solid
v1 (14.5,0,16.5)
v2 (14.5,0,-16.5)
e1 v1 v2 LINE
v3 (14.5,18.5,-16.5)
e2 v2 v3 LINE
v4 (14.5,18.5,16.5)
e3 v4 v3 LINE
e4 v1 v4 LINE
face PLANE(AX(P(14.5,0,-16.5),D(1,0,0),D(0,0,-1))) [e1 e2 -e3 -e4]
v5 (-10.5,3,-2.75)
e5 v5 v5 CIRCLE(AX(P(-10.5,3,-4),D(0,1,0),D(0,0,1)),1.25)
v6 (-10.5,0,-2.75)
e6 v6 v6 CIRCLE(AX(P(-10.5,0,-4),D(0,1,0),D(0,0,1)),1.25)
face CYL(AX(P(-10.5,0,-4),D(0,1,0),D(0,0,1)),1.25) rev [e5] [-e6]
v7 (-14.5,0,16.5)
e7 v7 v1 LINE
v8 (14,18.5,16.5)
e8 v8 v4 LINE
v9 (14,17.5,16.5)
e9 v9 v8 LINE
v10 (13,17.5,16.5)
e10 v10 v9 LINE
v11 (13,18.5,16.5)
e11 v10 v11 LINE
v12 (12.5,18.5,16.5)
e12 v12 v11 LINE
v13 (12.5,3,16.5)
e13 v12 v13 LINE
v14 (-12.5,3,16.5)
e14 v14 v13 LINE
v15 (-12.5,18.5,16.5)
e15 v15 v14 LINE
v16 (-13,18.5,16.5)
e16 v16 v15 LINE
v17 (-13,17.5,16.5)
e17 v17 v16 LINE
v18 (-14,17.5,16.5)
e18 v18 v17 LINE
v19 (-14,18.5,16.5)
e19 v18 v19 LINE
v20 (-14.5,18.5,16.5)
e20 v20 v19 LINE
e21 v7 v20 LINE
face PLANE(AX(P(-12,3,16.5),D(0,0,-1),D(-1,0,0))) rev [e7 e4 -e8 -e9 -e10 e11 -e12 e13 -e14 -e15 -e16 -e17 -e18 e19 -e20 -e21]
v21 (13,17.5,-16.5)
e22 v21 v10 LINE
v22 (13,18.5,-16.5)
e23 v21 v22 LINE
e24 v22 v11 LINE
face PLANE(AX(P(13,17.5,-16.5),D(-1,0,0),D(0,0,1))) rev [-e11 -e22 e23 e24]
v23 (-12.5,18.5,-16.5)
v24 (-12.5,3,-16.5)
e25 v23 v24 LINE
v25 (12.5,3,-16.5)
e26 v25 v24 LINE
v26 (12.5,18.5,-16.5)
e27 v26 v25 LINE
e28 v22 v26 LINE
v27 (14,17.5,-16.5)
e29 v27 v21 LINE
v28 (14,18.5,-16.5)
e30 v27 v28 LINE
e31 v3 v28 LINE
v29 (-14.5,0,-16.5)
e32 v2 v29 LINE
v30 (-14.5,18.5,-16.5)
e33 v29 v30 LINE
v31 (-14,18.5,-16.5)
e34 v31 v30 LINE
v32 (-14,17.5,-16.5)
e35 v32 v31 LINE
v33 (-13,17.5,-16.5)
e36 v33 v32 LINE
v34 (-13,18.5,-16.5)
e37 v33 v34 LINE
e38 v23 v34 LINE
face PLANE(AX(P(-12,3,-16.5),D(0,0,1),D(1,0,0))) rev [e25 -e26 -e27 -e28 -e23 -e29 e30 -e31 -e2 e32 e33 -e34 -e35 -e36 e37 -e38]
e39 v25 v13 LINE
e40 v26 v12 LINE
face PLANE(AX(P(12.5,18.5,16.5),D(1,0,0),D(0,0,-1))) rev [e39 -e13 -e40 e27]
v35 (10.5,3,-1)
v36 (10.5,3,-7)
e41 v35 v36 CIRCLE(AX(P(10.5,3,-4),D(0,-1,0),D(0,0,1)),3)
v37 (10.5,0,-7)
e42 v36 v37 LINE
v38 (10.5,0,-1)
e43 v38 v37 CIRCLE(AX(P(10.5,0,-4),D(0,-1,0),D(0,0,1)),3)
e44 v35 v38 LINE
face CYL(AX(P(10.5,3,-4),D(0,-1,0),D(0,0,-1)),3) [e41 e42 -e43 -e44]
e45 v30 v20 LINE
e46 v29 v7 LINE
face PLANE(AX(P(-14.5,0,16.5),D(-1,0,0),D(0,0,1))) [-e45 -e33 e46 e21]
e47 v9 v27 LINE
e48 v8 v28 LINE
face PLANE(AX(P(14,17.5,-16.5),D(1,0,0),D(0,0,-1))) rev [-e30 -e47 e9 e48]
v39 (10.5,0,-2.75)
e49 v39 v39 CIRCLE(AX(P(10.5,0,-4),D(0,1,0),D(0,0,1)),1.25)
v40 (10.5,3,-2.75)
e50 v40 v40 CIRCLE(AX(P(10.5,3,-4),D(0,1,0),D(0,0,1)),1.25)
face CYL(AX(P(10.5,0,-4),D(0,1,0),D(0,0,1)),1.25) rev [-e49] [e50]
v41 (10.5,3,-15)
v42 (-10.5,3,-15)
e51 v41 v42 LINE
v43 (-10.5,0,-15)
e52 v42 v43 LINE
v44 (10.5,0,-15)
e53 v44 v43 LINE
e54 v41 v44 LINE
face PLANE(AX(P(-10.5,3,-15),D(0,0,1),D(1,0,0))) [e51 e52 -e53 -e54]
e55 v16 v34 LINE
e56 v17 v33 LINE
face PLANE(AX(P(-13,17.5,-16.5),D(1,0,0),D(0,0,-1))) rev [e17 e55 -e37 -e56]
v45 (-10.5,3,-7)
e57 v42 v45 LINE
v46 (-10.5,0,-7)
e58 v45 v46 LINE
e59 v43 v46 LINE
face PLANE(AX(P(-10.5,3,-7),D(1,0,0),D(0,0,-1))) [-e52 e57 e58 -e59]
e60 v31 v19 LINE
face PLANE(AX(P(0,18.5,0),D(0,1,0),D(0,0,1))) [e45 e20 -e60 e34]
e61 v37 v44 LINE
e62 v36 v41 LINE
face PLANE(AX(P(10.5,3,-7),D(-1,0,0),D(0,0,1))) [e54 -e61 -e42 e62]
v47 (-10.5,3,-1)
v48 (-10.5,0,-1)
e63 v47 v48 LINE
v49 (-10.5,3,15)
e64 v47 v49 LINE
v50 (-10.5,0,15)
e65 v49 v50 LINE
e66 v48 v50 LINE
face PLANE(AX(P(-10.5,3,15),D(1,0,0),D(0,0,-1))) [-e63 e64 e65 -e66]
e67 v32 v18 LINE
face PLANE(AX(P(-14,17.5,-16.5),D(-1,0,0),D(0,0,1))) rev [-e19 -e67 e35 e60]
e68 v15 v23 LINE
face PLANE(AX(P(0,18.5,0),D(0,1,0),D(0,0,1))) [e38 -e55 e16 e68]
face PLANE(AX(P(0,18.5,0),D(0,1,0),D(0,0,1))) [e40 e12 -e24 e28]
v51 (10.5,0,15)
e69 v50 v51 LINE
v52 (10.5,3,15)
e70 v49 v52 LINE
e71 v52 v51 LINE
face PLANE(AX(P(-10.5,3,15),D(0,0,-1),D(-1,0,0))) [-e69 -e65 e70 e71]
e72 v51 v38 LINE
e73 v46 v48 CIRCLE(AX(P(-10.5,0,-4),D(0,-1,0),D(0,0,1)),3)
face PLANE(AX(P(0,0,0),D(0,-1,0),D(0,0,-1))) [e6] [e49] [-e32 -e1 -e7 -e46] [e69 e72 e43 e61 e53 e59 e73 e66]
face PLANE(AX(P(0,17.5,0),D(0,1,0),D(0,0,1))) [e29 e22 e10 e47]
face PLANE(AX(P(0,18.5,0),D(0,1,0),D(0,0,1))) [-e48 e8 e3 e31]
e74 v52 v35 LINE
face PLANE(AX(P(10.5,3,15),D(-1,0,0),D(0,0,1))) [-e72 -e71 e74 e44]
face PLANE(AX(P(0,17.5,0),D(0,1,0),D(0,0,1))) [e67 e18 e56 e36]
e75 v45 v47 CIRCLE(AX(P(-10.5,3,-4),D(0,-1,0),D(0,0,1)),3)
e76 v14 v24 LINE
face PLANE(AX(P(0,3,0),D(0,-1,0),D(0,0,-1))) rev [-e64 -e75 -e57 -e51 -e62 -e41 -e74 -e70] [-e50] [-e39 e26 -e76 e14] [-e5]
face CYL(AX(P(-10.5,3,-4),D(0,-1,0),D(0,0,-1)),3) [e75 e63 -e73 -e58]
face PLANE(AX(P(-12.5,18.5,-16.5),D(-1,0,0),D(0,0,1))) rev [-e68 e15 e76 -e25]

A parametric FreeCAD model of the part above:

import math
import FreeCAD as App
import Part
import Sketcher
from FreeCAD import Vector
Q = App.Units.Quantity

doc = App.newDocument("Part")
body = doc.addObject("PartDesign::Body", "Body")

# Sketch on XZ plane
sketch1 = doc.addObject("Sketcher::SketchObject", "Sketch")
body.addObject(sketch1)
sketch1.AttachmentSupport = (doc.XZ_Plane, [""])
sketch1.MapMode = "FlatFace"
sketch1.addGeometry([
    Part.LineSegment(Vector(-12, -16.5, 0), Vector(-12, 16.5, 0)),  # 0
    Part.LineSegment(Vector(-12, 16.5, 0), Vector(12, 16.5, 0)),  # 1
    Part.LineSegment(Vector(12, 16.5, 0), Vector(12, -16.5, 0)),  # 2
    Part.LineSegment(Vector(12, -16.5, 0), Vector(-12, -16.5, 0)),  # 3
    Part.LineSegment(Vector(10.5, -15, 0), Vector(10.5, -7, 0)),  # 4
    Part.ArcOfCircle(Part.Circle(Vector(10.5, -4, 0), Vector(0, 0, 1), 3), math.radians(90), math.radians(270)),  # 5
    Part.LineSegment(Vector(10.5, -1, 0), Vector(10.5, 15, 0)),  # 6
    Part.LineSegment(Vector(10.5, 15, 0), Vector(-10.5, 15, 0)),  # 7
    Part.LineSegment(Vector(-10.5, 15, 0), Vector(-10.5, -1, 0)),  # 8
    Part.ArcOfCircle(Part.Circle(Vector(-10.5, -4, 0), Vector(0, 0, 1), 3), math.radians(-90), math.radians(90)),  # 9
    Part.LineSegment(Vector(-10.5, -7, 0), Vector(-10.5, -15, 0)),  # 10
    Part.LineSegment(Vector(-10.5, -15, 0), Vector(10.5, -15, 0)),  # 11
], False)
sketch1.addConstraint([
    Sketcher.Constraint("Coincident", 0, 2, 1, 1),
    Sketcher.Constraint("Coincident", 1, 2, 2, 1),
    Sketcher.Constraint("Coincident", 2, 2, 3, 1),
    Sketcher.Constraint("Coincident", 3, 2, 0, 1),
    Sketcher.Constraint("Coincident", 4, 2, 5, 2),
    Sketcher.Constraint("Coincident", 5, 1, 6, 1),
    Sketcher.Constraint("Coincident", 6, 2, 7, 1),
    Sketcher.Constraint("Coincident", 7, 2, 8, 1),
    Sketcher.Constraint("Coincident", 8, 2, 9, 2),
    Sketcher.Constraint("Coincident", 9, 1, 10, 1),
    Sketcher.Constraint("Coincident", 10, 2, 11, 1),
    Sketcher.Constraint("Coincident", 11, 2, 4, 1),
    Sketcher.Constraint("Vertical", 0),
    Sketcher.Constraint("Horizontal", 1),
    Sketcher.Constraint("Vertical", 2),
    Sketcher.Constraint("Horizontal", 3),
    Sketcher.Constraint("Vertical", 4),
    Sketcher.Constraint("Vertical", 6),
    Sketcher.Constraint("Horizontal", 7),
    Sketcher.Constraint("Vertical", 8),
    Sketcher.Constraint("Vertical", 10),
    Sketcher.Constraint("Horizontal", 11),
    Sketcher.Constraint("Equal", 5, 9),
    Sketcher.Constraint("Symmetric", 0, 2, 2, 2, -1, 1),
    Sketcher.Constraint("Symmetric", 6, 2, 10, 2, -1, 1),
    Sketcher.Constraint("Symmetric", 5, 3, 9, 3, -2),
    Sketcher.Constraint("Vertical", 5, 3, 4, 2),
    Sketcher.Constraint("Vertical", 4, 2, 5, 1),
    Sketcher.Constraint("Vertical", 9, 3, 7, 2),
    Sketcher.Constraint("Radius", 5, Q("3 mm")),
    Sketcher.Constraint("DistanceX", 1, 1, 1, 2, Q("24 mm")),
    Sketcher.Constraint("DistanceX", 7, 2, 7, 1, Q("21 mm")),
    Sketcher.Constraint("DistanceY", 0, 1, 0, 2, Q("33 mm")),
    Sketcher.Constraint("DistanceY", 4, 1, 4, 2, Q("8 mm")),
    Sketcher.Constraint("DistanceY", 6, 1, 6, 2, Q("16 mm")),
])
pad1 = doc.addObject("PartDesign::Pad", "Pad")
body.addObject(pad1)
pad1.Profile = sketch1
pad1.Length = 3
pad1.Reversed = True

# Sketch on XZ plane
sketch2 = doc.addObject("Sketcher::SketchObject", "Sketch001")
body.addObject(sketch2)
sketch2.AttachmentSupport = (doc.XZ_Plane, [""])
sketch2.MapMode = "FlatFace"
sketch2.AttachmentOffset = App.Placement(Vector(0, 0, -3), App.Rotation())
sketch2.addGeometry([
    Part.Circle(Vector(-10.5, -4, 0), Vector(0, 0, 1), 1.25),
    Part.Circle(Vector(10.5, -4, 0), Vector(0, 0, 1), 1.25),
], False)
sketch2.addConstraint([
    Sketcher.Constraint("Equal", 0, 1),
    Sketcher.Constraint("Symmetric", 0, 3, 1, 3, -2),
    Sketcher.Constraint("Diameter", 0, Q("2.5 mm")),
    Sketcher.Constraint("DistanceY", 0, 3, -1, 1, Q("4 mm")),
    Sketcher.Constraint("DistanceX", 0, 3, 1, 3, Q("21 mm")),
])
pocket1 = doc.addObject("PartDesign::Pocket", "Pocket")
body.addObject(pocket1)
pocket1.Profile = sketch2
pocket1.Length = 3
pocket1.Reversed = True

# Sketch on XZ plane
sketch3 = doc.addObject("Sketcher::SketchObject", "Sketch002")
body.addObject(sketch3)
sketch3.AttachmentSupport = (doc.XZ_Plane, [""])
sketch3.MapMode = "FlatFace"
sketch3.AttachmentOffset = App.Placement(Vector(0, 0, -3), App.Rotation())
sketch3.addGeometry([
    Part.LineSegment(Vector(-14.5, -16.5, 0), Vector(-14.5, 16.5, 0)),  # 0
    Part.LineSegment(Vector(-14.5, 16.5, 0), Vector(-12, 16.5, 0)),  # 1
    Part.LineSegment(Vector(-12, 16.5, 0), Vector(-12, -16.5, 0)),  # 2
    Part.LineSegment(Vector(-12, -16.5, 0), Vector(-14.5, -16.5, 0)),  # 3
    Part.LineSegment(Vector(12, -16.5, 0), Vector(12, 16.5, 0)),  # 4
    Part.LineSegment(Vector(12, 16.5, 0), Vector(14.5, 16.5, 0)),  # 5
    Part.LineSegment(Vector(14.5, 16.5, 0), Vector(14.5, -16.5, 0)),  # 6
    Part.LineSegment(Vector(14.5, -16.5, 0), Vector(12, -16.5, 0)),  # 7
], False)
sketch3.addConstraint([
    Sketcher.Constraint("Coincident", 0, 2, 1, 1),
    Sketcher.Constraint("Coincident", 1, 2, 2, 1),
    Sketcher.Constraint("Coincident", 2, 2, 3, 1),
    Sketcher.Constraint("Coincident", 3, 2, 0, 1),
    Sketcher.Constraint("Coincident", 4, 2, 5, 1),
    Sketcher.Constraint("Coincident", 5, 2, 6, 1),
    Sketcher.Constraint("Coincident", 6, 2, 7, 1),
    Sketcher.Constraint("Coincident", 7, 2, 4, 1),
    Sketcher.Constraint("Vertical", 0),
    Sketcher.Constraint("Horizontal", 1),
    Sketcher.Constraint("Vertical", 2),
    Sketcher.Constraint("Horizontal", 3),
    Sketcher.Constraint("Vertical", 4),
    Sketcher.Constraint("Horizontal", 5),
    Sketcher.Constraint("Vertical", 6),
    Sketcher.Constraint("Horizontal", 7),
    Sketcher.Constraint("Symmetric", 2, 2, 4, 2, -1, 1),
    Sketcher.Constraint("Symmetric", 0, 2, 6, 2, -1, 1),
    Sketcher.Constraint("Horizontal", 1, 2, 4, 2),
    Sketcher.Constraint("DistanceY", 0, 1, 0, 2, Q("33 mm")),
    Sketcher.Constraint("DistanceX", 1, 1, 1, 2, Q("2.5 mm")),
    Sketcher.Constraint("DistanceX", 1, 2, -1, 1, Q("12 mm")),
])
pad2 = doc.addObject("PartDesign::Pad", "Pad001")
body.addObject(pad2)
pad2.Profile = sketch3
pad2.Length = 3

# Sketch on XZ plane
sketch4 = doc.addObject("Sketcher::SketchObject", "Sketch003")
body.addObject(sketch4)
sketch4.AttachmentSupport = (doc.XZ_Plane, [""])
sketch4.MapMode = "FlatFace"
sketch4.AttachmentOffset = App.Placement(Vector(0, 0, -3), App.Rotation())
sketch4.addGeometry([
    Part.LineSegment(Vector(-14.5, -16.5, 0), Vector(-14.5, 16.5, 0)),  # 0
    Part.LineSegment(Vector(-14.5, 16.5, 0), Vector(-12.5, 16.5, 0)),  # 1
    Part.LineSegment(Vector(-12.5, 16.5, 0), Vector(-12.5, -16.5, 0)),  # 2
    Part.LineSegment(Vector(-12.5, -16.5, 0), Vector(-14.5, -16.5, 0)),  # 3
    Part.LineSegment(Vector(12.5, -16.5, 0), Vector(12.5, 16.5, 0)),  # 4
    Part.LineSegment(Vector(12.5, 16.5, 0), Vector(14.5, 16.5, 0)),  # 5
    Part.LineSegment(Vector(14.5, 16.5, 0), Vector(14.5, -16.5, 0)),  # 6
    Part.LineSegment(Vector(14.5, -16.5, 0), Vector(12.5, -16.5, 0)),  # 7
], False)
sketch4.addConstraint([
    Sketcher.Constraint("Coincident", 0, 2, 1, 1),
    Sketcher.Constraint("Coincident", 1, 2, 2, 1),
    Sketcher.Constraint("Coincident", 2, 2, 3, 1),
    Sketcher.Constraint("Coincident", 3, 2, 0, 1),
    Sketcher.Constraint("Coincident", 4, 2, 5, 1),
    Sketcher.Constraint("Coincident", 5, 2, 6, 1),
    Sketcher.Constraint("Coincident", 6, 2, 7, 1),
    Sketcher.Constraint("Coincident", 7, 2, 4, 1),
    Sketcher.Constraint("Vertical", 0),
    Sketcher.Constraint("Horizontal", 1),
    Sketcher.Constraint("Vertical", 2),
    Sketcher.Constraint("Horizontal", 3),
    Sketcher.Constraint("Vertical", 4),
    Sketcher.Constraint("Horizontal", 5),
    Sketcher.Constraint("Vertical", 6),
    Sketcher.Constraint("Horizontal", 7),
    Sketcher.Constraint("Symmetric", 2, 2, 4, 2, -1, 1),
    Sketcher.Constraint("Symmetric", 0, 2, 6, 2, -1, 1),
    Sketcher.Constraint("Horizontal", 1, 2, 4, 2),
    Sketcher.Constraint("DistanceX", 1, 1, 1, 2, Q("2 mm")),
    Sketcher.Constraint("DistanceY", 0, 1, 0, 2, Q("33 mm")),
    Sketcher.Constraint("DistanceX", 1, 2, 4, 2, Q("25 mm")),
])
pad3 = doc.addObject("PartDesign::Pad", "Pad002")
body.addObject(pad3)
pad3.Profile = sketch4
pad3.Length = 15.5
pad3.Reversed = True

# Sketch on XZ plane
sketch5 = doc.addObject("Sketcher::SketchObject", "Sketch004")
body.addObject(sketch5)
sketch5.AttachmentSupport = (doc.XZ_Plane, [""])
sketch5.MapMode = "FlatFace"
sketch5.AttachmentOffset = App.Placement(Vector(0, 0, -18.5), App.Rotation())
sketch5.addGeometry([
    Part.LineSegment(Vector(13, -16.5, 0), Vector(13, 16.5, 0)),  # 0
    Part.LineSegment(Vector(13, 16.5, 0), Vector(14, 16.5, 0)),  # 1
    Part.LineSegment(Vector(14, 16.5, 0), Vector(14, -16.5, 0)),  # 2
    Part.LineSegment(Vector(14, -16.5, 0), Vector(13, -16.5, 0)),  # 3
    Part.LineSegment(Vector(-14, -16.5, 0), Vector(-14, 16.5, 0)),  # 4
    Part.LineSegment(Vector(-14, 16.5, 0), Vector(-13, 16.5, 0)),  # 5
    Part.LineSegment(Vector(-13, 16.5, 0), Vector(-13, -16.5, 0)),  # 6
    Part.LineSegment(Vector(-13, -16.5, 0), Vector(-14, -16.5, 0)),  # 7
], False)
sketch5.addConstraint([
    Sketcher.Constraint("Coincident", 0, 2, 1, 1),
    Sketcher.Constraint("Coincident", 1, 2, 2, 1),
    Sketcher.Constraint("Coincident", 2, 2, 3, 1),
    Sketcher.Constraint("Coincident", 3, 2, 0, 1),
    Sketcher.Constraint("Coincident", 4, 2, 5, 1),
    Sketcher.Constraint("Coincident", 5, 2, 6, 1),
    Sketcher.Constraint("Coincident", 6, 2, 7, 1),
    Sketcher.Constraint("Coincident", 7, 2, 4, 1),
    Sketcher.Constraint("Vertical", 0),
    Sketcher.Constraint("Horizontal", 1),
    Sketcher.Constraint("Vertical", 2),
    Sketcher.Constraint("Horizontal", 3),
    Sketcher.Constraint("Vertical", 4),
    Sketcher.Constraint("Horizontal", 5),
    Sketcher.Constraint("Vertical", 6),
    Sketcher.Constraint("Horizontal", 7),
    Sketcher.Constraint("Symmetric", 2, 2, 4, 2, -1, 1),
    Sketcher.Constraint("Symmetric", 0, 2, 6, 2, -1, 1),
    Sketcher.Constraint("Horizontal", 1, 2, 4, 2),
    Sketcher.Constraint("DistanceX", 1, 1, 1, 2, Q("1 mm")),
    Sketcher.Constraint("DistanceY", 0, 1, 0, 2, Q("33 mm")),
    Sketcher.Constraint("DistanceX", -1, 1, 0, 2, Q("13 mm")),
])
pocket2 = doc.addObject("PartDesign::Pocket", "Pocket001")
body.addObject(pocket2)
pocket2.Profile = sketch5
pocket2.Length = 1
pocket2.Reversed = True

doc.recompute()
